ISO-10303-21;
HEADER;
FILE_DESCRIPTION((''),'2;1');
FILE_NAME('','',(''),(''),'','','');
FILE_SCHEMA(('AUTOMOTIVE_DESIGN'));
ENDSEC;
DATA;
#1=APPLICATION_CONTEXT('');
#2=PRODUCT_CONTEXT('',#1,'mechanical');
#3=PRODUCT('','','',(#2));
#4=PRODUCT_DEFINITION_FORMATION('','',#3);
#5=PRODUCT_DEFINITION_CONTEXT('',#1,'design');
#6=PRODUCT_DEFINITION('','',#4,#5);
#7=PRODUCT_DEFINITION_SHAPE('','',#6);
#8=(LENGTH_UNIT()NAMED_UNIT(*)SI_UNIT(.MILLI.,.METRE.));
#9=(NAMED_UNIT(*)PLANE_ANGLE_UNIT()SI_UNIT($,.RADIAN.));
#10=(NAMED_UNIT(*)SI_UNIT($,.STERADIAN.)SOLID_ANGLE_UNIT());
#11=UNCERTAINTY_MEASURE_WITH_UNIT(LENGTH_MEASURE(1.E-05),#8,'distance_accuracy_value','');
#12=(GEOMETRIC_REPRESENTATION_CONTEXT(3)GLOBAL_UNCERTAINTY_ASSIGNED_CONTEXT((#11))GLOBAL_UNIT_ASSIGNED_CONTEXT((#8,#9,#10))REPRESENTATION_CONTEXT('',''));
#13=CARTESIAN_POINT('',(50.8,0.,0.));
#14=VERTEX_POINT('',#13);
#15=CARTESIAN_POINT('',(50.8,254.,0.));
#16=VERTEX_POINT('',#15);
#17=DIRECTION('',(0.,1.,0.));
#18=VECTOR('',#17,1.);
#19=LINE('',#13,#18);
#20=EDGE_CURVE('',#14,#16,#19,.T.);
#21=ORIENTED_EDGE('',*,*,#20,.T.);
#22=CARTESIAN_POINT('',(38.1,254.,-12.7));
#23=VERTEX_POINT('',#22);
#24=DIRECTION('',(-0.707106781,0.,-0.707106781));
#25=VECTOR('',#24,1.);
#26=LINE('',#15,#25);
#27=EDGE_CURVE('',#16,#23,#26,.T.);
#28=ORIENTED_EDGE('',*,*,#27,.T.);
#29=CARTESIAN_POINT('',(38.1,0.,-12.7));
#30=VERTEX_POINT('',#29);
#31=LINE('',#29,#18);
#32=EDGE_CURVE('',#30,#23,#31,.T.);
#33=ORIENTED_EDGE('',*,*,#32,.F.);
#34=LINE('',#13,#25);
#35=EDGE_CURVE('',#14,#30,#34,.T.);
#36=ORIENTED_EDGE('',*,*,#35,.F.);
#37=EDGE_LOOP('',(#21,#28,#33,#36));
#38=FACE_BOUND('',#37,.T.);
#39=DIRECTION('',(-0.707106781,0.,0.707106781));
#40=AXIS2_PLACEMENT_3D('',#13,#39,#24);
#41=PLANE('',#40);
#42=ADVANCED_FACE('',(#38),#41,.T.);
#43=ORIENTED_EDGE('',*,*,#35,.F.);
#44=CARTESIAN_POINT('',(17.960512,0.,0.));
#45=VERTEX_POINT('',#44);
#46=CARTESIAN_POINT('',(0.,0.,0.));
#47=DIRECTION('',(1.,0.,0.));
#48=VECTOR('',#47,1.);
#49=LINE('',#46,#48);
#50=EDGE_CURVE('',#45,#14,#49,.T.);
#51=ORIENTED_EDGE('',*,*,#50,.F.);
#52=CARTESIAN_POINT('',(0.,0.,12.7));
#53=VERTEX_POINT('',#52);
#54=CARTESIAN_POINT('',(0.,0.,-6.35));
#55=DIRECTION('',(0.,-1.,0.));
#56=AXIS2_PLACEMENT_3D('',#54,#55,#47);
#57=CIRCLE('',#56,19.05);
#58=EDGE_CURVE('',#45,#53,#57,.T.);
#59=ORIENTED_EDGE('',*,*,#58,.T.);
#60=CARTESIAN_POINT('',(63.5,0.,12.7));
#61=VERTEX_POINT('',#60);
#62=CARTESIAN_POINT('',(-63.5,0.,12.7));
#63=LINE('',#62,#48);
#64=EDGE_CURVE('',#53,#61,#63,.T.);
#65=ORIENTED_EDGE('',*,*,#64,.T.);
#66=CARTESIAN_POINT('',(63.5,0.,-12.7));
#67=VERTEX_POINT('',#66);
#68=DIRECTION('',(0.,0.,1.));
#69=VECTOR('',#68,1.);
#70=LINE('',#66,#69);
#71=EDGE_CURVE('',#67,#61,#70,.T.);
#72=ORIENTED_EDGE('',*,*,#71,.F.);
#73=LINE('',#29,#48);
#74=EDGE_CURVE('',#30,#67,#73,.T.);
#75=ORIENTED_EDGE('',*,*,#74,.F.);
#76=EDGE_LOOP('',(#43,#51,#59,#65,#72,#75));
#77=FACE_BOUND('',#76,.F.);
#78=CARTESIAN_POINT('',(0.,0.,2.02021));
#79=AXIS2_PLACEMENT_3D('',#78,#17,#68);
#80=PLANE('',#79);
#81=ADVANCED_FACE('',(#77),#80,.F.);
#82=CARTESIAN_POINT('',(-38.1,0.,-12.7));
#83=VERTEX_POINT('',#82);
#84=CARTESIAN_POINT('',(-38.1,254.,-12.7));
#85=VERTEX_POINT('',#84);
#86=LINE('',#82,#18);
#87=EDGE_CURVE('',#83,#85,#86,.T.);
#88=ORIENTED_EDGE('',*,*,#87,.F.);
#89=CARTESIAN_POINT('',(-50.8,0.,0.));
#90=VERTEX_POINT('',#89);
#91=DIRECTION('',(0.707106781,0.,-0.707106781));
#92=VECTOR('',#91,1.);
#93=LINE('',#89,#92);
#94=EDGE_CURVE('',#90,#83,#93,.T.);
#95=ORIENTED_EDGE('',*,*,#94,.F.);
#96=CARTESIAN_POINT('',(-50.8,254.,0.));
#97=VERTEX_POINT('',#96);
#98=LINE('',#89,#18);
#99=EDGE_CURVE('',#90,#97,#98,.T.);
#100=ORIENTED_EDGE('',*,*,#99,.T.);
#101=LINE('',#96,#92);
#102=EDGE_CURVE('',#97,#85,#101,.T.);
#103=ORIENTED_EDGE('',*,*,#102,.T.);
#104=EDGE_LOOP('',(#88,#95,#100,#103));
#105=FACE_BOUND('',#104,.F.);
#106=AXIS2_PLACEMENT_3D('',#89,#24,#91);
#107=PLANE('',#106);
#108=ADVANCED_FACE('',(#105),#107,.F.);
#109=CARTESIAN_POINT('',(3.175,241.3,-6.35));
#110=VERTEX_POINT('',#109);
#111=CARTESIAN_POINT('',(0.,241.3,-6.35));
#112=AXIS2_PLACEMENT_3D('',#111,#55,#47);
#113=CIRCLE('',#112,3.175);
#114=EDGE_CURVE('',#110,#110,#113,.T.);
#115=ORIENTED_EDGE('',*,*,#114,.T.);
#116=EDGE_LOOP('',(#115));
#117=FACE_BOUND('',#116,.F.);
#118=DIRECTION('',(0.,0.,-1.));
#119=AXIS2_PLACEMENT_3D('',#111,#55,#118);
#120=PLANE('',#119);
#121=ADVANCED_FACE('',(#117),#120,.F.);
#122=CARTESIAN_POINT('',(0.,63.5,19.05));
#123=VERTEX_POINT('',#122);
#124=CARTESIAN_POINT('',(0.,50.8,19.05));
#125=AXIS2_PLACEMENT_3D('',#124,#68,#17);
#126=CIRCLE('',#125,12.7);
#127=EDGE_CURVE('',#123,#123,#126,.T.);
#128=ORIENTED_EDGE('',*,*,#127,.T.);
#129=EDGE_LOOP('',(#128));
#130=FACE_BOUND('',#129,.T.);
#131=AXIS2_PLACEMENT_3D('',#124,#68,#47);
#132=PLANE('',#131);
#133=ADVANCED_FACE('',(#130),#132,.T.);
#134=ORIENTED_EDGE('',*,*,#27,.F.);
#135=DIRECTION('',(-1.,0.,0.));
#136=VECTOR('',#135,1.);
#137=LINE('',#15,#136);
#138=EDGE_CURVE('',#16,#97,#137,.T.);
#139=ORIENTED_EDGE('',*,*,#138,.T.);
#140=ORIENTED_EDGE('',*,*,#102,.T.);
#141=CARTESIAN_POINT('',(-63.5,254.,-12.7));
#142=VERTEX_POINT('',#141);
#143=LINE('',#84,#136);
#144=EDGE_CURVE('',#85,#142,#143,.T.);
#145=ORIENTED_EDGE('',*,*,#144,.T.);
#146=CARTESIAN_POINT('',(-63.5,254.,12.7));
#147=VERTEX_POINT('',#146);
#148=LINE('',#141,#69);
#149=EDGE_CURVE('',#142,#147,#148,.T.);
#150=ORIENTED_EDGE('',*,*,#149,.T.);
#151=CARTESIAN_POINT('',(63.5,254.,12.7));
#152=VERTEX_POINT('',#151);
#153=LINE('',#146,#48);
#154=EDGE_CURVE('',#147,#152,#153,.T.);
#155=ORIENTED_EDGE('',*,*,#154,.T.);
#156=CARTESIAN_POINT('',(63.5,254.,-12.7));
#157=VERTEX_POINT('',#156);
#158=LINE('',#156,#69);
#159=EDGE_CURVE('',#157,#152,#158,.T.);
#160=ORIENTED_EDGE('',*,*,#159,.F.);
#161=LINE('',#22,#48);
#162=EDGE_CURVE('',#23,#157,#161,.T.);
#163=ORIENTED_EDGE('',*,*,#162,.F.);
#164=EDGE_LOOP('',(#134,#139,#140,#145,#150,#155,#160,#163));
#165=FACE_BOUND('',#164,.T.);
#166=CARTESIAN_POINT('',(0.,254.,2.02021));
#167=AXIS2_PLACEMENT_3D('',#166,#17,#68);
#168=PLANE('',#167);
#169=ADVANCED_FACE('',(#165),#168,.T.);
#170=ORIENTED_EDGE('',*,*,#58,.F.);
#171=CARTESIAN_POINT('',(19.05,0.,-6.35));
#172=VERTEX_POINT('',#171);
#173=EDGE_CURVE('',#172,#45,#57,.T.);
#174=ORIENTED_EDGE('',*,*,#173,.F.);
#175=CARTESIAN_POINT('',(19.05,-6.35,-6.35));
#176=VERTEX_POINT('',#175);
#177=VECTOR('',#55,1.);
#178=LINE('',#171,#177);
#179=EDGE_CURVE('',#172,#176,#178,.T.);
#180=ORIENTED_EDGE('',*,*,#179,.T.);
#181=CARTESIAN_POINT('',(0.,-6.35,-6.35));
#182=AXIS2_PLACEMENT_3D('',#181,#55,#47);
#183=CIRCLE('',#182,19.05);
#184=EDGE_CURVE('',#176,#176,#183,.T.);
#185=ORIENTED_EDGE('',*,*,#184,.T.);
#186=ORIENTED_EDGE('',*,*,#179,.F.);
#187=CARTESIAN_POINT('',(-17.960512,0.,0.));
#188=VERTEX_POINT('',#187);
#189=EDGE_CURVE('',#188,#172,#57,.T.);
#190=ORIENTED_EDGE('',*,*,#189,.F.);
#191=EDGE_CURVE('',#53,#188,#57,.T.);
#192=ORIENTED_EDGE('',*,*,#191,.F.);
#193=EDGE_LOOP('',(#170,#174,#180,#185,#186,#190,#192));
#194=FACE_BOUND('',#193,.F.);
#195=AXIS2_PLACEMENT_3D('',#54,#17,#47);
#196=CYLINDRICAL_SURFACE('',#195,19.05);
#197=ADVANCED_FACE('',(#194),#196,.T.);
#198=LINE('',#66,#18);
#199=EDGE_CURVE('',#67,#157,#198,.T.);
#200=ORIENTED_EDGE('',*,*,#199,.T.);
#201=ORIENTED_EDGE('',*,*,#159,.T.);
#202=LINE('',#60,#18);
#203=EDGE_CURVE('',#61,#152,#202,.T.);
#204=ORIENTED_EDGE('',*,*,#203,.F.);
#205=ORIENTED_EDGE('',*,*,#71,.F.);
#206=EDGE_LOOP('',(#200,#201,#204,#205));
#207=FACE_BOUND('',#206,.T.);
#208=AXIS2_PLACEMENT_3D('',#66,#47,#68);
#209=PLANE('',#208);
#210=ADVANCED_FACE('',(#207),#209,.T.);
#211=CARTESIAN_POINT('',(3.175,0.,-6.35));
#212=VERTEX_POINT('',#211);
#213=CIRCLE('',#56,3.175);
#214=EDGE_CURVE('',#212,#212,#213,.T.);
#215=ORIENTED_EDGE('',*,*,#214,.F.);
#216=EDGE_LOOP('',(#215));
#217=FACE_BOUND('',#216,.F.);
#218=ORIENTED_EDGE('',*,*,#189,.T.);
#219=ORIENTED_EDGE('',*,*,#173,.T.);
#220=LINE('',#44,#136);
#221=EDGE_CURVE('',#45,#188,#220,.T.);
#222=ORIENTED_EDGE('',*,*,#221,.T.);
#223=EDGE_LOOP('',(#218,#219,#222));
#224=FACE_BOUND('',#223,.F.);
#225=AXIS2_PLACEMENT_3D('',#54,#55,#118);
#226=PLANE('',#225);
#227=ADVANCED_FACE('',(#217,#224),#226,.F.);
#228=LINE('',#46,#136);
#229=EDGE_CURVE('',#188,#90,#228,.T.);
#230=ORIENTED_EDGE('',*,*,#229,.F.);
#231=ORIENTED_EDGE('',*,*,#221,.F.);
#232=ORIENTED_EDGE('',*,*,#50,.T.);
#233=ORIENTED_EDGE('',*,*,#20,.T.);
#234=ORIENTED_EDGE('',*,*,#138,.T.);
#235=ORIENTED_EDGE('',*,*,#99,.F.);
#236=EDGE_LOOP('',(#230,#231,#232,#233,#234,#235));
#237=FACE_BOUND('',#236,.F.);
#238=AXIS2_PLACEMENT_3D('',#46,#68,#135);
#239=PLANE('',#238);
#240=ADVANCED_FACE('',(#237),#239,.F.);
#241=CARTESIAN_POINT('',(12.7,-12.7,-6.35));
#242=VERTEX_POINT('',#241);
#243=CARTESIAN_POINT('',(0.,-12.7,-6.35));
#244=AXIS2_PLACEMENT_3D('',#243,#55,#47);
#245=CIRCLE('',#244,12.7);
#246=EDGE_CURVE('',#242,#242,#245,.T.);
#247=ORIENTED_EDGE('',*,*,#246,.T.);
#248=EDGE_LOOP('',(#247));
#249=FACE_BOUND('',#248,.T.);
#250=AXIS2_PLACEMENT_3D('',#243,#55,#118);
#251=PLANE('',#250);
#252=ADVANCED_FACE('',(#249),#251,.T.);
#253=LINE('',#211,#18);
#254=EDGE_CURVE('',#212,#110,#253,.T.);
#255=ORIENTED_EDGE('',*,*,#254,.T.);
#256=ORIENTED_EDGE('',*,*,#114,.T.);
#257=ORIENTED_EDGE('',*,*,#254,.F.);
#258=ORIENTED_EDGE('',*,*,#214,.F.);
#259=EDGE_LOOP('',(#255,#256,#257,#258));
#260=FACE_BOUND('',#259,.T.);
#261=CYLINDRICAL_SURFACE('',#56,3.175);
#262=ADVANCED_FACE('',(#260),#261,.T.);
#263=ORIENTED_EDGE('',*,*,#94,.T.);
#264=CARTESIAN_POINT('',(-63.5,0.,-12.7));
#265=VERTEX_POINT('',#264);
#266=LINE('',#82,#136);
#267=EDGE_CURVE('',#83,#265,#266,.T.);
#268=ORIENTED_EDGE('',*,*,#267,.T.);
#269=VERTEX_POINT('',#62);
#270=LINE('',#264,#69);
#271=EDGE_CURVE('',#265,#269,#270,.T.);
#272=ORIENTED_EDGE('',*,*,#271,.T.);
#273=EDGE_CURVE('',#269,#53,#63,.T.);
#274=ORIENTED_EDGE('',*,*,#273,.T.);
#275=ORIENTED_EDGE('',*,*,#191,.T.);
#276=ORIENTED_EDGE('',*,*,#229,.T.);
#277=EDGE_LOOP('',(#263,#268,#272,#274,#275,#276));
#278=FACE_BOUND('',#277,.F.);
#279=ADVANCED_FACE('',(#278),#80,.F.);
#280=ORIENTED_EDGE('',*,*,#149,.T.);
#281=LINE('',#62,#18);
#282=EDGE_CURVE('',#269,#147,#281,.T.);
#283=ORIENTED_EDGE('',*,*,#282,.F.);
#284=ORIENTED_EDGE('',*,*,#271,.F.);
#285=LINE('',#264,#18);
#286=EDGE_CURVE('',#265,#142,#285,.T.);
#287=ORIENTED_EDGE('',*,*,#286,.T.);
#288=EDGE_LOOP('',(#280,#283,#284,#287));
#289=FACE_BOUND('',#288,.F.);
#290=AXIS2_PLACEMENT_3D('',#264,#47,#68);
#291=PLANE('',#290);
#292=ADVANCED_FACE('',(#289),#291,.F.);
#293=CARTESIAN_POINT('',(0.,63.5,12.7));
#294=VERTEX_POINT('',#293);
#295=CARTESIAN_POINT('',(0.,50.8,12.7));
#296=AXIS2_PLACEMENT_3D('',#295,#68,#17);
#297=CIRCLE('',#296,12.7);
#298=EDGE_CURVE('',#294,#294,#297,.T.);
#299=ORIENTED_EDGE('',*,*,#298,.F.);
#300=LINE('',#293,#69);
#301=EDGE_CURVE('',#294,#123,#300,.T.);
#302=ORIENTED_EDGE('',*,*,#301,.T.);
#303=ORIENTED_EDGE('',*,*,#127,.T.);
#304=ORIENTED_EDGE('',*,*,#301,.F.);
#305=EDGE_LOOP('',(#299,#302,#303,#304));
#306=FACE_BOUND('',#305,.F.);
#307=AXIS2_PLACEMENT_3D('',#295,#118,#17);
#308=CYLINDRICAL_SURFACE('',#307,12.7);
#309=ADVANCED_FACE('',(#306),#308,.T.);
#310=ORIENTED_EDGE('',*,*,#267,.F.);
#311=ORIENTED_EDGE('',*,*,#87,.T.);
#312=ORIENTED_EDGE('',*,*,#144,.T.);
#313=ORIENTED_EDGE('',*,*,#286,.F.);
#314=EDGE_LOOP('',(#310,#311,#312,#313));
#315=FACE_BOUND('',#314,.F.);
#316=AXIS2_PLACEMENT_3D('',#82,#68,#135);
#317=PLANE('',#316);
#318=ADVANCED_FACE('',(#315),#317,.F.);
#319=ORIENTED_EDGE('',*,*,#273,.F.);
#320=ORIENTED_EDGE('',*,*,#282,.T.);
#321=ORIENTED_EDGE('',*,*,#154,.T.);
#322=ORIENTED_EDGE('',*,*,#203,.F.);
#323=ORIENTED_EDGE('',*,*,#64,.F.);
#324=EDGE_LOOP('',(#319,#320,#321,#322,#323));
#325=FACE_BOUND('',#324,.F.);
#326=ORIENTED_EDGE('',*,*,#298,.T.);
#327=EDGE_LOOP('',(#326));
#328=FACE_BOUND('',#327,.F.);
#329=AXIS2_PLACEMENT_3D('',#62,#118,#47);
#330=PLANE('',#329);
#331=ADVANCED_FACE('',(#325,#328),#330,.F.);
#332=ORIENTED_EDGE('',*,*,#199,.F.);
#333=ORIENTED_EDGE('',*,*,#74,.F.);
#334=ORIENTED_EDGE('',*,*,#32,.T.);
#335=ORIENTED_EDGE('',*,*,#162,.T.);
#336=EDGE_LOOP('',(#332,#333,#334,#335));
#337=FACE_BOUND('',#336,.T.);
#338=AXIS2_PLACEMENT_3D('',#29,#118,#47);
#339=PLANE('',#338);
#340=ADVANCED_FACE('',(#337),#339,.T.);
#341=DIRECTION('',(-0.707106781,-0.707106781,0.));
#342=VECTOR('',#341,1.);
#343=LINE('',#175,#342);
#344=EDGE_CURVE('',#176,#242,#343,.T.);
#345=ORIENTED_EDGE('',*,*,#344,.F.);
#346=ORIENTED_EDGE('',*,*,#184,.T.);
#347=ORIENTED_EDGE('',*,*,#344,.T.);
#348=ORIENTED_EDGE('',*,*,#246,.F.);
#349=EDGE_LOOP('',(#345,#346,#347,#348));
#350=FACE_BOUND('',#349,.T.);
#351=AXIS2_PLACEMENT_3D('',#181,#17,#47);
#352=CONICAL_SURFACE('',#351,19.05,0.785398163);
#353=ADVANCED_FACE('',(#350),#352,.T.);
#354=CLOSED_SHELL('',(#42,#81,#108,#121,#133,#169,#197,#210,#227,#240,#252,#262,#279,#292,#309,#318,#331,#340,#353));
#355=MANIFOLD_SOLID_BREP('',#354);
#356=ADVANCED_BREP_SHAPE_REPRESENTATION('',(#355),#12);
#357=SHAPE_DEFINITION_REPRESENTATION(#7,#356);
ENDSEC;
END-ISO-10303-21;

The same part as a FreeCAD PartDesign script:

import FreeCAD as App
import Part
import Sketcher
Q = App.Units.Quantity


def edges_at(feature, points):
    """Names of the edges that pass closest to the given points."""
    edges = feature.Shape.Edges
    near = lambda p: min(range(len(edges)), key=lambda i: edges[i].distToShape(Part.Vertex(*p))[0])
    return sorted({f"Edge{near(p) + 1}" for p in points})

doc = App.newDocument("Part")
params = doc.addObject("Spreadsheet::Sheet", "Params")
for row, (alias, value) in enumerate([
    ("sketch1_width", "5 in"),
    ("sketch1_width2", "1 in"),
    ("pad1_length", "10 in"),
    ("sketch2_diameter", "1.5 in"),
    ("pad2_length", "0.5 in"),
    ("chamfer_size", "0.25 in"),
    ("sketch3_diameter", "0.25 in"),
    ("pad3_length", "9.5 in"),
    ("sketch4_diameter", "1 in"),
    ("pad4_length", "0.25 in"),
], start=1):
    params.set(f"A{row}", alias)
    params.set(f"B{row}", "=" + value)
    params.setAlias(f"B{row}", alias)

body = doc.addObject("PartDesign::Body", "Body")

# Sketch on XZ plane
sketch1 = body.newObject("Sketcher::SketchObject", "Sketch")
sketch1.AttachmentSupport = (doc.getObject("XZ_Plane"), [""])
sketch1.MapMode = "FlatFace"
sketch1.addGeometry(Part.LineSegment(App.Vector(64, 13, 0), App.Vector(-64, 13, 0)), False)
sketch1.addGeometry(Part.LineSegment(App.Vector(-64, 13, 0), App.Vector(-64, -13, 0)), False)
sketch1.addGeometry(Part.LineSegment(App.Vector(-64, -13, 0), App.Vector(-38, -13, 0)), False)
sketch1.addGeometry(Part.LineSegment(App.Vector(-38, -13, 0), App.Vector(-51, 0, 0)), False)
sketch1.addGeometry(Part.LineSegment(App.Vector(-51, 0, 0), App.Vector(51, 0, 0)), False)
sketch1.addGeometry(Part.LineSegment(App.Vector(51, 0, 0), App.Vector(38, -13, 0)), False)
sketch1.addGeometry(Part.LineSegment(App.Vector(38, -13, 0), App.Vector(64, -13, 0)), False)
sketch1.addGeometry(Part.LineSegment(App.Vector(64, -13, 0), App.Vector(64, 13, 0)), False)
sketch1.addConstraint(Sketcher.Constraint("Coincident", 0, 2, 1, 1))
sketch1.addConstraint(Sketcher.Constraint("Coincident", 1, 2, 2, 1))
sketch1.addConstraint(Sketcher.Constraint("Coincident", 2, 2, 3, 1))
sketch1.addConstraint(Sketcher.Constraint("Coincident", 3, 2, 4, 1))
sketch1.addConstraint(Sketcher.Constraint("Coincident", 4, 2, 5, 1))
sketch1.addConstraint(Sketcher.Constraint("Coincident", 5, 2, 6, 1))
sketch1.addConstraint(Sketcher.Constraint("Coincident", 6, 2, 7, 1))
sketch1.addConstraint(Sketcher.Constraint("Coincident", 7, 2, 0, 1))
sketch1.addConstraint(Sketcher.Constraint("Horizontal", 0))
sketch1.addConstraint(Sketcher.Constraint("Vertical", 1))
sketch1.addConstraint(Sketcher.Constraint("Horizontal", 2))
sketch1.addConstraint(Sketcher.Constraint("Horizontal", 4))
sketch1.addConstraint(Sketcher.Constraint("Horizontal", 6))
sketch1.addConstraint(Sketcher.Constraint("Vertical", 7))
sketch1.addConstraint(Sketcher.Constraint("Symmetric", 3, 2, 4, 2, -1, 1))
sketch1.addConstraint(Sketcher.Constraint("Symmetric", 0, 2, 6, 2, -1, 1))
sketch1.addConstraint(Sketcher.Constraint("Symmetric", 2, 2, 5, 2, -2))
sketch1.addConstraint(Sketcher.Constraint("Perpendicular", 3, 5))
sketch1.addConstraint(Sketcher.Constraint("Equal", 6, 1))
sketch1.addConstraint(Sketcher.Constraint("DistanceX", 0, 2, 0, 1, Q("5 in")))
sketch1.addConstraint(Sketcher.Constraint("DistanceX", 2, 1, 2, 2, Q("1 in")))
sketch1.setExpression("Constraints[19]", "Params.sketch1_width")
sketch1.setExpression("Constraints[20]", "Params.sketch1_width2")
pad1 = body.newObject("PartDesign::Pad", "Pad")
pad1.Profile = sketch1
pad1.setExpression("Length", "Params.pad1_length")
pad1.Reversed = True

# Sketch on XZ plane
sketch2 = body.newObject("Sketcher::SketchObject", "Sketch001")
sketch2.AttachmentSupport = (doc.getObject("XZ_Plane"), [""])
sketch2.MapMode = "FlatFace"
sketch2.addGeometry(Part.Circle(App.Vector(0, -6, 0), App.Vector(0, 0, 1), 19), False)
sketch2.addConstraint(Sketcher.Constraint("PointOnObject", 0, 3, -2))
sketch2.addConstraint(Sketcher.Constraint("Diameter", 0, Q("1.5 in")))
sketch2.addConstraint(Sketcher.Constraint("DistanceY", 0, 3, -1, 1, Q("0.25 in")))
sketch2.setExpression("Constraints[1]", "Params.sketch2_diameter")
pad2 = body.newObject("PartDesign::Pad", "Pad001")
pad2.Profile = sketch2
pad2.setExpression("Length", "Params.pad2_length")
doc.recompute()

chamfer = body.newObject("PartDesign::Chamfer", "Chamfer")
chamfer.Base = (pad2, edges_at(pad2, [(-19.05, -12.7, -6.35)]))
chamfer.setExpression("Size", "Params.chamfer_size")

# Sketch on XZ plane
sketch3 = body.newObject("Sketcher::SketchObject", "Sketch002")
sketch3.AttachmentSupport = (doc.getObject("XZ_Plane"), [""])
sketch3.MapMode = "FlatFace"
sketch3.addGeometry(Part.Circle(App.Vector(0, -6.3, 0), App.Vector(0, 0, 1), 3.2), False)
sketch3.addConstraint(Sketcher.Constraint("PointOnObject", 0, 3, -2))
sketch3.addConstraint(Sketcher.Constraint("Diameter", 0, Q("0.25 in")))
sketch3.addConstraint(Sketcher.Constraint("DistanceY", 0, 3, -1, 1, Q("0.25 in")))
sketch3.setExpression("Constraints[1]", "Params.sketch3_diameter")
pad3 = body.newObject("PartDesign::Pad", "Pad002")
pad3.Profile = sketch3
pad3.setExpression("Length", "Params.pad3_length")
pad3.Reversed = True

# Sketch on XY plane
sketch4 = body.newObject("Sketcher::SketchObject", "Sketch003")
sketch4.AttachmentSupport = (doc.getObject("XY_Plane"), [""])
sketch4.MapMode = "FlatFace"
sketch4.AttachmentOffset = App.Placement(App.Vector(0, 0, 0.5 * 25.4), App.Rotation())
sketch4.addGeometry(Part.Circle(App.Vector(0, 51, 0), App.Vector(0, 0, 1), 13), False)
sketch4.addConstraint(Sketcher.Constraint("PointOnObject", 0, 3, -2))
sketch4.addConstraint(Sketcher.Constraint("Diameter", 0, Q("1 in")))
sketch4.addConstraint(Sketcher.Constraint("DistanceY", -1, 1, 0, 3, Q("2 in")))
sketch4.setExpression("Constraints[1]", "Params.sketch4_diameter")
pad4 = body.newObject("PartDesign::Pad", "Pad003")
pad4.Profile = sketch4
pad4.setExpression("Length", "Params.pad4_length")

doc.recompute()
